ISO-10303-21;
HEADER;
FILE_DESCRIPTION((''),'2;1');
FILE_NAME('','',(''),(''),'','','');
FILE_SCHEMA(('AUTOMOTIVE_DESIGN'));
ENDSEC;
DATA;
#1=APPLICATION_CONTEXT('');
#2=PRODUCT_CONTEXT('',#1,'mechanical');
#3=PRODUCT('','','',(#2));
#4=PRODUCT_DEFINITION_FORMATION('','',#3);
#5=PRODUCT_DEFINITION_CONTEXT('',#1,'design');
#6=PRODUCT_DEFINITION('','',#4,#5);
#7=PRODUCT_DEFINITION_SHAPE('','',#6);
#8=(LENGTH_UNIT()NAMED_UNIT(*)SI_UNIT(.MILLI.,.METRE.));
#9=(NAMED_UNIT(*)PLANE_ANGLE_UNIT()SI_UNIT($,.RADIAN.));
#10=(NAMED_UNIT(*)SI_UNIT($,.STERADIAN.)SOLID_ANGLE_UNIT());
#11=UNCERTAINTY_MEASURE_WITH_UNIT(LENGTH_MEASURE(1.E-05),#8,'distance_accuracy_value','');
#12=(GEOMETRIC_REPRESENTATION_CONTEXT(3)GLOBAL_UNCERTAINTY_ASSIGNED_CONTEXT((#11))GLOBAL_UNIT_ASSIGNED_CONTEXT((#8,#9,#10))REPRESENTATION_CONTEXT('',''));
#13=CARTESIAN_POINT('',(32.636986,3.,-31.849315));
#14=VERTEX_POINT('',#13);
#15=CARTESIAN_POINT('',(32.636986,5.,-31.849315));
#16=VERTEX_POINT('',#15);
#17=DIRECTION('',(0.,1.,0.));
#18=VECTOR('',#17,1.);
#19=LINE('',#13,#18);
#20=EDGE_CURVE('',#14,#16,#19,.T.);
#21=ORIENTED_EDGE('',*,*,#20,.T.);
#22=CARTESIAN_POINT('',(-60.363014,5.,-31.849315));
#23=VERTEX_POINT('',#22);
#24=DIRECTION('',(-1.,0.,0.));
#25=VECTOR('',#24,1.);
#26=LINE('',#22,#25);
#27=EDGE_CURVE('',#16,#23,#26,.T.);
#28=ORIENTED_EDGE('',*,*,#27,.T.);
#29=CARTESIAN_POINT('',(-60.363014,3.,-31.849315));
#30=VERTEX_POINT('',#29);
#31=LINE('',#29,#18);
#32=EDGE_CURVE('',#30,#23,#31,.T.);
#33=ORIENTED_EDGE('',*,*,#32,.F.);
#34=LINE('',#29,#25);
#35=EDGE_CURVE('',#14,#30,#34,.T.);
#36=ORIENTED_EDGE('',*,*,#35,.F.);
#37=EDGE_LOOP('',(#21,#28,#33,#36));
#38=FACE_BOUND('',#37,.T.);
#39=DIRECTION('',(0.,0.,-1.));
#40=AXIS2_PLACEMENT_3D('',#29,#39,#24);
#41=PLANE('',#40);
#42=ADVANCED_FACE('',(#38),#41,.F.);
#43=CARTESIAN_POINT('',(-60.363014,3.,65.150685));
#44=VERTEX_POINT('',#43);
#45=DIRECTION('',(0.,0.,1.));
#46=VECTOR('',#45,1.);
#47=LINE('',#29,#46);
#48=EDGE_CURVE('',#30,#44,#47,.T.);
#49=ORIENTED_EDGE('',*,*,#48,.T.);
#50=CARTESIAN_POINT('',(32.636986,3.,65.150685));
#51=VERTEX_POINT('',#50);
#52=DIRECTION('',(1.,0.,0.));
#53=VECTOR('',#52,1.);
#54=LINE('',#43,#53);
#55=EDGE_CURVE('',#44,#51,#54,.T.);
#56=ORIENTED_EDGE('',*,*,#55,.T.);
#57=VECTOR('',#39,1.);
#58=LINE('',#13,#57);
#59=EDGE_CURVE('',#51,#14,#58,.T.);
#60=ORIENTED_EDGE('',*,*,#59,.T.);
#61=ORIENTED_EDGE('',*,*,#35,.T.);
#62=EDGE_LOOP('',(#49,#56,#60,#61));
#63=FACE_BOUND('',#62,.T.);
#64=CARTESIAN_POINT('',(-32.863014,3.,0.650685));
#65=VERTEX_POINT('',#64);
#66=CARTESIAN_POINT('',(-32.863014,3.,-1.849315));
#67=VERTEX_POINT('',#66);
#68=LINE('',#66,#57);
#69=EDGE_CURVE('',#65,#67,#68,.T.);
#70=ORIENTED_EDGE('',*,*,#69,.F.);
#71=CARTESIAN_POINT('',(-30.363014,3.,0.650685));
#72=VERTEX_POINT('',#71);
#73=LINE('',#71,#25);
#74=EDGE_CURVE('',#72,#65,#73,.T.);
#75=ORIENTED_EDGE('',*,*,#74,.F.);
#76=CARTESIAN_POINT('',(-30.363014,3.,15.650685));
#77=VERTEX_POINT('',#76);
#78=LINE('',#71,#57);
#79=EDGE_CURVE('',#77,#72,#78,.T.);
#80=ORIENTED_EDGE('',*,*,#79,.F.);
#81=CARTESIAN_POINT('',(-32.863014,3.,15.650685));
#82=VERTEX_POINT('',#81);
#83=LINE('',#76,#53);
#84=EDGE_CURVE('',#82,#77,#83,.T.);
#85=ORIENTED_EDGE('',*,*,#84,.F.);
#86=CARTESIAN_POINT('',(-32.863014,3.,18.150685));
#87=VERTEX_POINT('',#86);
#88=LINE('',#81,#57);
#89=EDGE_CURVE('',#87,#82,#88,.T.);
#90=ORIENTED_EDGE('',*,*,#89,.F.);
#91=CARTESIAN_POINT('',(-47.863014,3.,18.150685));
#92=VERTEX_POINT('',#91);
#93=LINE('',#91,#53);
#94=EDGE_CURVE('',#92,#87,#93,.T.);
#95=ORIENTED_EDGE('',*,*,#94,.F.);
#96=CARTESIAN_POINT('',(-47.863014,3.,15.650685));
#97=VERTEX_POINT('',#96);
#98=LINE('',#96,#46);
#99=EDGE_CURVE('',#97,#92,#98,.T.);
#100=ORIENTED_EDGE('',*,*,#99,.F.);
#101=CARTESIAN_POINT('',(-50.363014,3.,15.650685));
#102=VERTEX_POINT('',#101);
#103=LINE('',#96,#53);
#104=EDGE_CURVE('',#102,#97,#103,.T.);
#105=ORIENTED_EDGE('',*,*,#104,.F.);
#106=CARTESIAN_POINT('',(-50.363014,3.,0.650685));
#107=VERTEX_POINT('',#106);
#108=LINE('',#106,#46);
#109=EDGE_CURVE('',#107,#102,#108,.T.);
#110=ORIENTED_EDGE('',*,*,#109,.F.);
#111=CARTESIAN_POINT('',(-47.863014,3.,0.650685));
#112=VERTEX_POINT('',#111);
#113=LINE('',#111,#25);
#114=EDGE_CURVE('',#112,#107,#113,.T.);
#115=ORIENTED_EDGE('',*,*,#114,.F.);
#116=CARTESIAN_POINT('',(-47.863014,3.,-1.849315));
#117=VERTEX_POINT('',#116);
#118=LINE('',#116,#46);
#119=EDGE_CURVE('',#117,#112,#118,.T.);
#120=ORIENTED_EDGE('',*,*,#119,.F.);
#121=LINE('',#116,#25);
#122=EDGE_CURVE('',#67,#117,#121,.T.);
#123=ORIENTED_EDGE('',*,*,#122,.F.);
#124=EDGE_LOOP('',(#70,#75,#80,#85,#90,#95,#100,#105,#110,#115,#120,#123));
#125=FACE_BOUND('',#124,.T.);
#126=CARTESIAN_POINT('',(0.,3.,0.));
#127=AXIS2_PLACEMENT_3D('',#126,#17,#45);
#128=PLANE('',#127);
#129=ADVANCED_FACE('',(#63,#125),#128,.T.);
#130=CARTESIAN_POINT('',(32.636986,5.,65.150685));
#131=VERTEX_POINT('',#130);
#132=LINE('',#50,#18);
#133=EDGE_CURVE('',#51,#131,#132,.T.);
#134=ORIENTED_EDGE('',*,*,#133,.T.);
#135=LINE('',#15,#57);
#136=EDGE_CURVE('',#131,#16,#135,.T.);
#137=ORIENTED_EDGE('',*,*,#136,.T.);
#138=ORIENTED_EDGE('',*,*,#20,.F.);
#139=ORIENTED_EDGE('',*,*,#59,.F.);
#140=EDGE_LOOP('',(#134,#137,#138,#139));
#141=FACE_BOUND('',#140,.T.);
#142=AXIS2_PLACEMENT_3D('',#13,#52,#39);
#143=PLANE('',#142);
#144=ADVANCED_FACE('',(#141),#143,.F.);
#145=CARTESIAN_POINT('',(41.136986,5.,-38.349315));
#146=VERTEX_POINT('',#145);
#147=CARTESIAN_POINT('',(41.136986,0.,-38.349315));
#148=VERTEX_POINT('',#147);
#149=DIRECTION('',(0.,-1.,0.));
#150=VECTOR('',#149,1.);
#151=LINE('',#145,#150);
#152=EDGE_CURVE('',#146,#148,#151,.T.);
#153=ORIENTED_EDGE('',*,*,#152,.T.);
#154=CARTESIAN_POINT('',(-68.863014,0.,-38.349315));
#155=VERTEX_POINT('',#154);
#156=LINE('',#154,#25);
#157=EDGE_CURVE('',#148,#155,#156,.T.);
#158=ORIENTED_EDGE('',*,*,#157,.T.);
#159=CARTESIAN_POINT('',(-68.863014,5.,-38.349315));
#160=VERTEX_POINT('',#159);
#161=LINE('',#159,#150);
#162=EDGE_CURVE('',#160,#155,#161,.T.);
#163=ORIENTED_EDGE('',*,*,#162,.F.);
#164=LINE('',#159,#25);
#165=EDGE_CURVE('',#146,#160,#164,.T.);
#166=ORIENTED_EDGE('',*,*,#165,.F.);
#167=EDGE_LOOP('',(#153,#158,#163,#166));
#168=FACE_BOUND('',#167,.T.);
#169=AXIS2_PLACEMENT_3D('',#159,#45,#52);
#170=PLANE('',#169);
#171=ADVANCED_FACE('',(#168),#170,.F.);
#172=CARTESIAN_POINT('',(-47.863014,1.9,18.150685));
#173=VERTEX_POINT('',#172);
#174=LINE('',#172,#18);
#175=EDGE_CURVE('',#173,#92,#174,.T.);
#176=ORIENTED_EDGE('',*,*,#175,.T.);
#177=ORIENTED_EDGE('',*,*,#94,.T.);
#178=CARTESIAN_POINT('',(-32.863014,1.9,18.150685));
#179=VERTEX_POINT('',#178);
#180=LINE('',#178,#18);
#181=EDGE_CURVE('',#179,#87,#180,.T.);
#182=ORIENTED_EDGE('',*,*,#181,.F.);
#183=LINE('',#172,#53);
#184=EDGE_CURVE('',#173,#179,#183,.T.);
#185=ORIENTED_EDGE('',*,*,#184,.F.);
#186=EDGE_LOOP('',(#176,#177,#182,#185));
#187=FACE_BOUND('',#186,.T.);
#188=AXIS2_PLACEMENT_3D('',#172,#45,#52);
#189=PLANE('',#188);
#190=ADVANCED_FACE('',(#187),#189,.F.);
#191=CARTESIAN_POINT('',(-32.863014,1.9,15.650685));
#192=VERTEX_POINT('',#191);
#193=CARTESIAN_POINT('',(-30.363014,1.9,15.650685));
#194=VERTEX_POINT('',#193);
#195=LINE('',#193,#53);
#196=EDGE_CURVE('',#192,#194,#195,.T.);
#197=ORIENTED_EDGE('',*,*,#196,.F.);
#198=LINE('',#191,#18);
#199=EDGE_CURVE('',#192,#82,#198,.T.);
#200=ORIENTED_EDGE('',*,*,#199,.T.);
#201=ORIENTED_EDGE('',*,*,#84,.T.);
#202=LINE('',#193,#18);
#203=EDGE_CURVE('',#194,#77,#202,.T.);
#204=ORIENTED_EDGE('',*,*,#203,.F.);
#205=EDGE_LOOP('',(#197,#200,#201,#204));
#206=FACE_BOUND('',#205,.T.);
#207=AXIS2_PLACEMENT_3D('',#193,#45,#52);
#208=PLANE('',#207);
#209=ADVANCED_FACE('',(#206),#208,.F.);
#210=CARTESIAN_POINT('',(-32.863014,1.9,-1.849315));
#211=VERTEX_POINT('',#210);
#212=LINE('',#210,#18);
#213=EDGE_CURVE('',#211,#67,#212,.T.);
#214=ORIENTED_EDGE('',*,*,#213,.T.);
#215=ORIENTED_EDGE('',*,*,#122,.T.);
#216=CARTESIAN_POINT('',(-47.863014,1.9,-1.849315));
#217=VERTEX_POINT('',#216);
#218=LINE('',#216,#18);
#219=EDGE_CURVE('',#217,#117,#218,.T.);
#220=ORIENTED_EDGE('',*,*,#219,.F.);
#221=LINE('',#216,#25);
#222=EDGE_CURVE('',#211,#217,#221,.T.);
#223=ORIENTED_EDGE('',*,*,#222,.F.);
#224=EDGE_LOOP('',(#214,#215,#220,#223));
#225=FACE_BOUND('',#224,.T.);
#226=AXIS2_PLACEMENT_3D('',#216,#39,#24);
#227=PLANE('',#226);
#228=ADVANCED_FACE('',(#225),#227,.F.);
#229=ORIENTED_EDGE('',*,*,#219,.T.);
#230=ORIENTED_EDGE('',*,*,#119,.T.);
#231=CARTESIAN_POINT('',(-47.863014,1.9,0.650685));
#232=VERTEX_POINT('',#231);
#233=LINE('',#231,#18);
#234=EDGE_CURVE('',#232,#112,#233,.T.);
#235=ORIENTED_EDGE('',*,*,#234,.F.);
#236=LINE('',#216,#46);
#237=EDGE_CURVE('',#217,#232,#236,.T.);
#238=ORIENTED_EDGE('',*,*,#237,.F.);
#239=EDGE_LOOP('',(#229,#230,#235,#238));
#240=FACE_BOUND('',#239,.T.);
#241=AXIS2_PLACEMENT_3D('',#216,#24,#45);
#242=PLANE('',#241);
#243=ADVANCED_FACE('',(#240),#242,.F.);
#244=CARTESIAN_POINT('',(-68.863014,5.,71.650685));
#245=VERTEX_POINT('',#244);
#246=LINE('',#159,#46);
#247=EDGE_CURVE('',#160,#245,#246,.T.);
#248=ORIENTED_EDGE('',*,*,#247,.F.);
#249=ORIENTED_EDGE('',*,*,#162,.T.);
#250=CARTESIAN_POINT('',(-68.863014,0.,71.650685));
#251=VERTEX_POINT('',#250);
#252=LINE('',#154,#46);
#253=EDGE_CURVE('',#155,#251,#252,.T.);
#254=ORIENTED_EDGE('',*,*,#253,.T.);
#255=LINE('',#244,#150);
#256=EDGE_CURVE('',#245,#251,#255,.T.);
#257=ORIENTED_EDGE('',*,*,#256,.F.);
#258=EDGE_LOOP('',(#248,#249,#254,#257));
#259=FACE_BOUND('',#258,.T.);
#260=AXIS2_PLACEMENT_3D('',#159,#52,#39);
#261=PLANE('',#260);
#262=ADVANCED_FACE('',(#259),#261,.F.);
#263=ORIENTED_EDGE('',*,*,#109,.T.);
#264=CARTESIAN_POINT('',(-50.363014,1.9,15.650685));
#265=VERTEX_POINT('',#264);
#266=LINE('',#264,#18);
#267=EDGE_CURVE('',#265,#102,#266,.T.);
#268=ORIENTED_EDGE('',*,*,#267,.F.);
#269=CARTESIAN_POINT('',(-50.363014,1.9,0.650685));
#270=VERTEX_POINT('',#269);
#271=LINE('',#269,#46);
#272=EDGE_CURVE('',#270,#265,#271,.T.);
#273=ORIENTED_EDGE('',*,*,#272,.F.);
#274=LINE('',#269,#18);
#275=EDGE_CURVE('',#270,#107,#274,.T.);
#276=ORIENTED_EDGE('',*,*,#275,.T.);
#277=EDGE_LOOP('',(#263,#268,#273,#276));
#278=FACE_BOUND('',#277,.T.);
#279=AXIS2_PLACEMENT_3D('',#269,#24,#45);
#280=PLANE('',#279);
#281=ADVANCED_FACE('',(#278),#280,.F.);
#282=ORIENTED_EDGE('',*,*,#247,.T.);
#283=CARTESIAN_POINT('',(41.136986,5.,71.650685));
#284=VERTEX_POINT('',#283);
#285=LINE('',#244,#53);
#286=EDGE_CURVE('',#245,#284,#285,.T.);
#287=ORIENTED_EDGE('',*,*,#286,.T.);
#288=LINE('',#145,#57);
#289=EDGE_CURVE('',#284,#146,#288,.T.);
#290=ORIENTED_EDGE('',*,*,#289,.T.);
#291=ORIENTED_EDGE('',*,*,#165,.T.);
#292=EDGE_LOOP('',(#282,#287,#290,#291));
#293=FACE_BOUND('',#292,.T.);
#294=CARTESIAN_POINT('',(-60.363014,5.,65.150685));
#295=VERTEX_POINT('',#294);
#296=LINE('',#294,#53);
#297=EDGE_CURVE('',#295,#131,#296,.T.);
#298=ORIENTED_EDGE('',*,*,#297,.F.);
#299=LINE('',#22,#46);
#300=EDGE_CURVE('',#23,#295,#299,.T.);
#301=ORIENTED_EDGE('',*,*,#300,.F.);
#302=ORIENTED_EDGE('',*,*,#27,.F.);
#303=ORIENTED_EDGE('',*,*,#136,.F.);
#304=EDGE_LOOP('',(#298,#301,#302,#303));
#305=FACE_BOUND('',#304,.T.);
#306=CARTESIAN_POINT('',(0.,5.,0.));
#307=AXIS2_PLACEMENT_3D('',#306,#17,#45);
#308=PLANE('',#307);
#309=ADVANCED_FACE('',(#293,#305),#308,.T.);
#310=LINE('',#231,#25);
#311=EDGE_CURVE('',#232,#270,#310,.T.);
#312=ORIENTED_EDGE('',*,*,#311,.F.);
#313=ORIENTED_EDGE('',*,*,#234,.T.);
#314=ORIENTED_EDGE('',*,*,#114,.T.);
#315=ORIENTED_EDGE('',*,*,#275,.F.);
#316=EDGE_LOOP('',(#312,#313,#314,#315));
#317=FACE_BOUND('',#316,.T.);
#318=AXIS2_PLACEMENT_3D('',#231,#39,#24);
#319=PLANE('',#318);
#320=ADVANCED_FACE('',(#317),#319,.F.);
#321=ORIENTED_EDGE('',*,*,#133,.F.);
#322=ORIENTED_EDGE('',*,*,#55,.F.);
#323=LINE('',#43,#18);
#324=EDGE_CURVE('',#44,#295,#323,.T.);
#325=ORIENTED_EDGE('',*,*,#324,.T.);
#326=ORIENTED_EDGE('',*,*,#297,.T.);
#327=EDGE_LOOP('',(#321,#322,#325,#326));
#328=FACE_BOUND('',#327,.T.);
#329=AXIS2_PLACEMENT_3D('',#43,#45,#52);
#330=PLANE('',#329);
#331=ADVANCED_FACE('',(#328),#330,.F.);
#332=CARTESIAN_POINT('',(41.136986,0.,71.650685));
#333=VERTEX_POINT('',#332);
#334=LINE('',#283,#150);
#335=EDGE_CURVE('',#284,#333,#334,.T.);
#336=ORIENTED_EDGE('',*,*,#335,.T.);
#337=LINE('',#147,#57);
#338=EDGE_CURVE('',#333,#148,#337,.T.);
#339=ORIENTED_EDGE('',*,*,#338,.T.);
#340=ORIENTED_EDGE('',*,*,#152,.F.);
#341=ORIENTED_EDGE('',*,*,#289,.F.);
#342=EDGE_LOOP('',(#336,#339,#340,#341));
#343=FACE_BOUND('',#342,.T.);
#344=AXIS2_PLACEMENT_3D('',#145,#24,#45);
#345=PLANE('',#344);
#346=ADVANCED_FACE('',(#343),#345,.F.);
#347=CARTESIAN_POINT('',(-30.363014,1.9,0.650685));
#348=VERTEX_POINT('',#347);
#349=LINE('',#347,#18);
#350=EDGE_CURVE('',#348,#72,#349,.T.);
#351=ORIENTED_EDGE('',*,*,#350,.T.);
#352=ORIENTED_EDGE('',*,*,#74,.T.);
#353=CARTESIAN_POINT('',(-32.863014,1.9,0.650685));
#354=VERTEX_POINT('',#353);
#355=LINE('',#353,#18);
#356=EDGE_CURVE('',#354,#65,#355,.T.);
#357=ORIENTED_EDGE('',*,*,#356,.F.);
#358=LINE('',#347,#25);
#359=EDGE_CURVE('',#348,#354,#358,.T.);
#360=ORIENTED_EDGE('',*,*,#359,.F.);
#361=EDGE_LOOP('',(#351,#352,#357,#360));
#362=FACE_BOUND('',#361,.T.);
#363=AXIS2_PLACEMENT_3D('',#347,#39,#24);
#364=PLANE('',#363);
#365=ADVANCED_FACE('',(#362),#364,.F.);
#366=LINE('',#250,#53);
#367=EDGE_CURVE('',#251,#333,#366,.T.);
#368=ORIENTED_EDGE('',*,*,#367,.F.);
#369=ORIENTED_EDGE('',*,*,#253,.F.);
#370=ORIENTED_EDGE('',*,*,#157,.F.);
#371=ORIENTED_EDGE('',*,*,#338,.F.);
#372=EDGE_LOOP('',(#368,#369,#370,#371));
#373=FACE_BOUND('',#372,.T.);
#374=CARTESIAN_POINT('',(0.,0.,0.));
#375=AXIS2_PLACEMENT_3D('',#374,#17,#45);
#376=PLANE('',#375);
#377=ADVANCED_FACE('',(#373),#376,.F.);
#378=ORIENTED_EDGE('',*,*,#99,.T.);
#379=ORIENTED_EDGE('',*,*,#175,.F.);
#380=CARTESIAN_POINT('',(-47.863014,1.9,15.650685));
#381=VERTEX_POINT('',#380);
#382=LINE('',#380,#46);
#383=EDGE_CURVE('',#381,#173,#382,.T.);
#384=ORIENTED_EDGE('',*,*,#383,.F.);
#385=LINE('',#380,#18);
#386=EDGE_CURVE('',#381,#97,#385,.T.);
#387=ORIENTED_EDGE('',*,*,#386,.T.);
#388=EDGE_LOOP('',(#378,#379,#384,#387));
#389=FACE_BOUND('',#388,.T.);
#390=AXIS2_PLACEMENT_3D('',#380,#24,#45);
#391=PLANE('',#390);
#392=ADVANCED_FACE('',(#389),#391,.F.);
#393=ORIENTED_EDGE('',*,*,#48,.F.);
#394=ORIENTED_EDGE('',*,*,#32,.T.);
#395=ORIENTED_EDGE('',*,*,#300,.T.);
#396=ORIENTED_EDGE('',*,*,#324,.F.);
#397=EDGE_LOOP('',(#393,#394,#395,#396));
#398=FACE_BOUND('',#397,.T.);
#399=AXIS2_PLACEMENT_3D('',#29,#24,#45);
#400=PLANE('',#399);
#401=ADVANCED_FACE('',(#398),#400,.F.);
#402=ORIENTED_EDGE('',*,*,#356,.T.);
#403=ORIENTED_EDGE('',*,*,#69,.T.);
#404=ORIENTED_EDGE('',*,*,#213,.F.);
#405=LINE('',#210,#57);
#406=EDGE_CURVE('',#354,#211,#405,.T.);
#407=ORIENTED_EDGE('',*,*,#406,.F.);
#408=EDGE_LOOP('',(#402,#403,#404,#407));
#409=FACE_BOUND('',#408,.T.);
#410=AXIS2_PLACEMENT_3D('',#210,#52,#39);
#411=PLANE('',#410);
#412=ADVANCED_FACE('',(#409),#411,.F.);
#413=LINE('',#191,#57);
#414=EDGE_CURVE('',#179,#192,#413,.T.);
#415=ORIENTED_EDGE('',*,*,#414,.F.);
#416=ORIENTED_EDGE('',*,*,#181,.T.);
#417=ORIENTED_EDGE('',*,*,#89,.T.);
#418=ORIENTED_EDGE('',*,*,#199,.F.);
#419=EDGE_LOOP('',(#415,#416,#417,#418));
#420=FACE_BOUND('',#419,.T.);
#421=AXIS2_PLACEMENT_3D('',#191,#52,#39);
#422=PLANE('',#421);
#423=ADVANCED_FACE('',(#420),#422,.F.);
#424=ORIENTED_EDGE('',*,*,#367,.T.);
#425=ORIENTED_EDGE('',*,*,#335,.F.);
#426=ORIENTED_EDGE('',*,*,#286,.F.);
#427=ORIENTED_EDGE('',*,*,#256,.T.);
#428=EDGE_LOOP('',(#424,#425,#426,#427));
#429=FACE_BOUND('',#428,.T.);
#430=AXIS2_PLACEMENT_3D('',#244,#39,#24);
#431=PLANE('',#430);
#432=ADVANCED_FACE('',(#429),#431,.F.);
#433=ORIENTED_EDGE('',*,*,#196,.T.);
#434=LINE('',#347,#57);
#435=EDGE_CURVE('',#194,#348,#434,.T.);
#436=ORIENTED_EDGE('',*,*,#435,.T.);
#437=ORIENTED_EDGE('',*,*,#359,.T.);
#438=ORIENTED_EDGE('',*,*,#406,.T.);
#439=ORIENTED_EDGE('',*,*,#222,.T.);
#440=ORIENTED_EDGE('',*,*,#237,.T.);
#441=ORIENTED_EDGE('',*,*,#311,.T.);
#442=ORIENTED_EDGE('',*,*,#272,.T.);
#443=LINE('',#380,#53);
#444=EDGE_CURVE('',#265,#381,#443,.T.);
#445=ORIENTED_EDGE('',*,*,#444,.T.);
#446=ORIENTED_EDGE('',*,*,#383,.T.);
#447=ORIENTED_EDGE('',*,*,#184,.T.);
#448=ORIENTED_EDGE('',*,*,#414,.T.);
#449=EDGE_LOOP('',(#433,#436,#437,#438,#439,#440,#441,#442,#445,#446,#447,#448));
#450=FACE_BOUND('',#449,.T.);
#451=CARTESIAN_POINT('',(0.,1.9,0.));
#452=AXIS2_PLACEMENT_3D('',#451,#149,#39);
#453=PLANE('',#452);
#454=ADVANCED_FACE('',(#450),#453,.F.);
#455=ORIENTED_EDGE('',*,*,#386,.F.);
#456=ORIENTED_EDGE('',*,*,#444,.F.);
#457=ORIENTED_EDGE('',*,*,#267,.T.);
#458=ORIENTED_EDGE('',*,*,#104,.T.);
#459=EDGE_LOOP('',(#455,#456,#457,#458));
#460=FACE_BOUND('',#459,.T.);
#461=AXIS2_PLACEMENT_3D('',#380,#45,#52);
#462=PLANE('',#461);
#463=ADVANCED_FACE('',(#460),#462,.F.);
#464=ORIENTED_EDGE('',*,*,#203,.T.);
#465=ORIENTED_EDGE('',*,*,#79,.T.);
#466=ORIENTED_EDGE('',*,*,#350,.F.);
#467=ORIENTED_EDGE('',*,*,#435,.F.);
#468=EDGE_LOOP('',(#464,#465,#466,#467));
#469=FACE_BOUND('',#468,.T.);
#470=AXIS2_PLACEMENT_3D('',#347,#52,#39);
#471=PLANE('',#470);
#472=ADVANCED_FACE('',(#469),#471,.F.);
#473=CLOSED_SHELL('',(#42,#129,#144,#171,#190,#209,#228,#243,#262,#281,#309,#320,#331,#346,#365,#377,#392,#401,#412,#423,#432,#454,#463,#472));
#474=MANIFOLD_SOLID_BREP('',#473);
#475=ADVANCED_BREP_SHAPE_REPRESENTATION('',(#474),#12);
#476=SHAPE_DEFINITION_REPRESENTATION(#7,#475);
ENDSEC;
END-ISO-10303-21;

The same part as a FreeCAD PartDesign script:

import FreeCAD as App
import Part
import Sketcher
from FreeCAD import Vector


def add_polygon(sketch, points):
    """Adds a closed chain of lines whose ends are joined by coincident constraints."""
    first, n = sketch.GeometryCount, len(points)
    for a, b in zip(points, points[1:] + points[:1]):
        sketch.addGeometry(Part.LineSegment(App.Vector(*a, 0), App.Vector(*b, 0)), False)
    for i in range(n):
        sketch.addConstraint(Sketcher.Constraint("Coincident", first + i, 2, first + (i + 1) % n, 1))

doc = App.newDocument("Part")
params = doc.addObject("Spreadsheet::Sheet", "Params")
for row, (alias, value) in enumerate([
    ("sketch1_width", "110 mm"),
    ("pad1_length", "5 mm"),
    ("sketch2_width", "93 mm"),
    ("sketch2_height", "97 mm"),
    ("pocket1_length", "2 mm"),
    ("sketch3_width", "15 mm"),
    ("sketch3_width2", "2.5 mm"),
    ("pocket2_length", "1.1 mm"),
], start=1):
    params.set(f"A{row}", alias)
    params.set(f"B{row}", "=" + value)
    params.setAlias(f"B{row}", alias)

body = doc.addObject("PartDesign::Body", "Body")

sketch1 = body.newObject("Sketcher::SketchObject", "Sketch")
sketch1.AttachmentSupport = (doc.getObject("XZ_Plane"), [""])
sketch1.MapMode = "FlatFace"
add_polygon(sketch1, [(-69, -38), (-69, 72), (41, 72), (41, -38)])
sketch1.addConstraint([
    Sketcher.Constraint("Vertical", 0),
    Sketcher.Constraint("Horizontal", 1),
    Sketcher.Constraint("Vertical", 2),
    Sketcher.Constraint("Horizontal", 3),
    Sketcher.Constraint("Equal", 3, 0),
    Sketcher.Constraint("DistanceX", 1, 1, 1, 2, 110.0),
    Sketcher.Constraint("DistanceX", 0, 2, -1, 1, 68.863014),
    Sketcher.Constraint("DistanceY", -1, 1, 0, 2, 71.650685),
])
sketch1.setExpression("Constraints[9]", "Params.sketch1_width")
pad1 = body.newObject("PartDesign::Pad", "Pad")
pad1.Profile = sketch1
pad1.setExpression("Length", "Params.pad1_length")
pad1.Reversed = True

sketch2 = body.newObject("Sketcher::SketchObject", "Sketch001")
sketch2.AttachmentSupport = (doc.getObject("XZ_Plane"), [""])
sketch2.MapMode = "FlatFace"
sketch2.AttachmentOffset = App.Placement(Vector(0, 0, -5), App.Rotation())
add_polygon(sketch2, [(-60, -32), (-60, 65), (33, 65), (33, -32)])
sketch2.addConstraint([
    Sketcher.Constraint("Vertical", 0),
    Sketcher.Constraint("Horizontal", 1),
    Sketcher.Constraint("Vertical", 2),
    Sketcher.Constraint("Horizontal", 3),
    Sketcher.Constraint("DistanceX", 1, 1, 1, 2, 93.0),
    Sketcher.Constraint("DistanceY", 0, 1, 0, 2, 97.0),
    Sketcher.Constraint("DistanceX", 0, 2, -1, 1, 60.363014),
    Sketcher.Constraint("DistanceY", -1, 1, 0, 2, 65.150685),
])
sketch2.setExpression("Constraints[8]", "Params.sketch2_width")
sketch2.setExpression("Constraints[9]", "Params.sketch2_height")
pocket1 = body.newObject("PartDesign::Pocket", "Pocket")
pocket1.Profile = sketch2
pocket1.setExpression("Length", "Params.pocket1_length")
pocket1.Reversed = True

sketch3 = body.newObject("Sketcher::SketchObject", "Sketch002")
sketch3.AttachmentSupport = (doc.getObject("XZ_Plane"), [""])
sketch3.MapMode = "FlatFace"
sketch3.AttachmentOffset = App.Placement(Vector(0, 0, -3), App.Rotation())
add_polygon(sketch3, [(-30.4, 0.7), (-32.9, 0.7), (-32.9, -1.8), (-47.9, -1.8), (-47.9, 0.7), (-50.4, 0.7), (-50.4, 15.7), (-47.9, 15.7), (-47.9, 18.2), (-32.9, 18.2), (-32.9, 15.7), (-30.4, 15.7)])
sketch3.addConstraint([
    Sketcher.Constraint("Horizontal", 0),
    Sketcher.Constraint("Vertical", 1),
    Sketcher.Constraint("Horizontal", 2),
    Sketcher.Constraint("Vertical", 3),
    Sketcher.Constraint("Horizontal", 4),
    Sketcher.Constraint("Vertical", 5),
    Sketcher.Constraint("Horizontal", 6),
    Sketcher.Constraint("Vertical", 7),
    Sketcher.Constraint("Horizontal", 8),
    Sketcher.Constraint("Vertical", 9),
    Sketcher.Constraint("Horizontal", 10),
    Sketcher.Constraint("Vertical", 11),
    Sketcher.Constraint("Horizontal", 0, 2, 3, 2),
    Sketcher.Constraint("Horizontal", 6, 2, 9, 2),
    Sketcher.Constraint("Vertical", 3, 2, 6, 2),
    Sketcher.Constraint("Vertical", 1, 2, 8, 2),
    Sketcher.Constraint("Equal", 0, 4),
    Sketcher.Constraint("Equal", 10, 1),
    Sketcher.Constraint("Equal", 8, 5),
    Sketcher.Constraint("Equal", 3, 7),
    Sketcher.Constraint("DistanceX", 2, 2, 2, 1, 15.0),
    Sketcher.Constraint("DistanceX", 0, 2, 0, 1, 2.5),
    Sketcher.Constraint("DistanceX", 0, 2, -1, 1, 32.863014),
    Sketcher.Constraint("DistanceY", -1, 1, 0, 2, 0.650685),
])
sketch3.setExpression("Constraints[32]", "Params.sketch3_width")
sketch3.setExpression("Constraints[33]", "Params.sketch3_width2")
pocket2 = body.newObject("PartDesign::Pocket", "Pocket001")
pocket2.Profile = sketch3
pocket2.setExpression("Length", "Params.pocket2_length")
pocket2.Reversed = True

doc.recompute()
